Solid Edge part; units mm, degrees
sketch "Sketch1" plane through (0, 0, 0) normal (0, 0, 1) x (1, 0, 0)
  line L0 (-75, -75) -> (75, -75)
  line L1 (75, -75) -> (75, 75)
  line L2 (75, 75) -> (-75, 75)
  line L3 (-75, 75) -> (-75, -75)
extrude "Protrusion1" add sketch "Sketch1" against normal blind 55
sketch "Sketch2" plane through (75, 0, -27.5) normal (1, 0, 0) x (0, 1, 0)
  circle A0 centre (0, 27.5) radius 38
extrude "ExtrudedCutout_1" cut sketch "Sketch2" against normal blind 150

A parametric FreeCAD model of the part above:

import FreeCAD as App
import Part
import Sketcher

V = App.Vector

doc = App.newDocument("Part")
body = doc.addObject("PartDesign::Body", "Body")

sketch1 = body.newObject("Sketcher::SketchObject", "Sketch")
sketch1.AttachmentSupport = (doc.getObject("XY_Plane"), [""])
sketch1.MapMode = "FlatFace"
sketch1.addGeometry([
    Part.LineSegment(V(-75, 75, 0), V(-75, -75, 0)),
    Part.LineSegment(V(-75, -75, 0), V(75, -75, 0)),
    Part.LineSegment(V(75, -75, 0), V(75, 75, 0)),
    Part.LineSegment(V(75, 75, 0), V(-75, 75, 0)),
], False)
sketch1.addConstraint([
    Sketcher.Constraint("Coincident", 0, 2, 1, 1),
    Sketcher.Constraint("Coincident", 1, 2, 2, 1),
    Sketcher.Constraint("Coincident", 2, 2, 3, 1),
    Sketcher.Constraint("Coincident", 3, 2, 0, 1),
    Sketcher.Constraint("Vertical", 0),
    Sketcher.Constraint("Horizontal", 1),
    Sketcher.Constraint("Vertical", 2),
    Sketcher.Constraint("Horizontal", 3),
    Sketcher.Constraint("Symmetric", 0, 2, 2, 2, -1, 1),
    Sketcher.Constraint("Equal", 3, 0),
    Sketcher.Constraint("DistanceX", 1, 1, 1, 2, 150.0),
])
pad1 = body.newObject("PartDesign::Pad", "Pad")
pad1.Profile = sketch1
pad1.Length = 55
pad1.Reversed = True

sketch2 = body.newObject("Sketcher::SketchObject", "Sketch001")
sketch2.AttachmentSupport = (doc.getObject("YZ_Plane"), [""])
sketch2.MapMode = "FlatFace"
sketch2.AttachmentOffset = App.Placement(V(0, 0, 75), App.Rotation())
sketch2.addGeometry(Part.Circle(V(0, 0, 0), V(0, 0, 1), 38), False)
sketch2.addConstraint([
    Sketcher.Constraint("Coincident", 0, 3, -1, 1),
    Sketcher.Constraint("Diameter", 0, 76.0),
])
pocket1 = body.newObject("PartDesign::Pocket", "Pocket")
pocket1.Profile = sketch2
pocket1.Length = 150

doc.recompute()
